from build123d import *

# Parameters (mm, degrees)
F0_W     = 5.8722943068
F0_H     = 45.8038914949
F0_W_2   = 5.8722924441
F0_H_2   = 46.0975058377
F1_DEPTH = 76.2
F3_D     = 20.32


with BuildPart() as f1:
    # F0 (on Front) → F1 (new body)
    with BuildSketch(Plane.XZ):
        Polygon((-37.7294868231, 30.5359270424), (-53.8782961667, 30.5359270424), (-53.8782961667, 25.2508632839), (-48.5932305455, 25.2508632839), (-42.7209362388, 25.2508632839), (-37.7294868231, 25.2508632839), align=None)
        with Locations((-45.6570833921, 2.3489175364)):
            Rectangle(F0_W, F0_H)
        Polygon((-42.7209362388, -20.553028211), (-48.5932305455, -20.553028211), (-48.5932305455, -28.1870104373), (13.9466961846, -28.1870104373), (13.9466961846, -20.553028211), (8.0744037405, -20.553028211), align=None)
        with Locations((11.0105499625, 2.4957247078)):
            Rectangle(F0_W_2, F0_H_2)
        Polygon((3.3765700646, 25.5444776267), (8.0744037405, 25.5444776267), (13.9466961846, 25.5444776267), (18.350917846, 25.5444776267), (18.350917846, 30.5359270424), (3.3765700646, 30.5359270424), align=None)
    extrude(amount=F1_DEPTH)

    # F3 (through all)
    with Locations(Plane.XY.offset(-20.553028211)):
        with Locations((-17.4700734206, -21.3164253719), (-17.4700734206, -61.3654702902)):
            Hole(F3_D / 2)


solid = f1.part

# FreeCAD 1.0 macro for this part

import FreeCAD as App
import Part
import Sketcher
from FreeCAD import Vector
Q = App.Units.Quantity


def add_polygon(sketch, points):
    """Adds a closed chain of lines whose ends are joined by coincident constraints."""
    first, n = sketch.GeometryCount, len(points)
    for a, b in zip(points, points[1:] + points[:1]):
        sketch.addGeometry(Part.LineSegment(App.Vector(*a, 0), App.Vector(*b, 0)), False)
    for i in range(n):
        sketch.addConstraint(Sketcher.Constraint("Coincident", first + i, 2, first + (i + 1) % n, 1))

doc = App.newDocument("Part")
body = doc.addObject("PartDesign::Body", "Body")

# Sketch on XZ plane
sketch1 = body.newObject("Sketcher::SketchObject", "Sketch")
sketch1.AttachmentSupport = (doc.getObject("XZ_Plane"), [""])
sketch1.MapMode = "FlatFace"
add_polygon(sketch1, [(-37.729487, 30.535927), (-53.878296, 30.535927), (-53.878296, 25.250863), (-48.593231, 25.250863), (-48.593231, -28.18701), (13.946696, -28.18701), (13.946696, 25.544478), (18.350918, 25.544478), (18.350918, 30.535927), (3.37657, 30.535927), (3.37657, 25.544478), (8.074404, 25.544478), (8.074404, -20.553028), (-42.720936, -20.553028), (-42.720936, 25.250863), (-37.729487, 25.250863)])  # lines 0-15
sketch1.addConstraint(Sketcher.Constraint("Horizontal", 0))
sketch1.addConstraint(Sketcher.Constraint("Vertical", 1))
sketch1.addConstraint(Sketcher.Constraint("Horizontal", 2))
sketch1.addConstraint(Sketcher.Constraint("Vertical", 3))
sketch1.addConstraint(Sketcher.Constraint("Horizontal", 4))
sketch1.addConstraint(Sketcher.Constraint("Vertical", 5))
sketch1.addConstraint(Sketcher.Constraint("Horizontal", 6))
sketch1.addConstraint(Sketcher.Constraint("Vertical", 7))
sketch1.addConstraint(Sketcher.Constraint("Horizontal", 8))
sketch1.addConstraint(Sketcher.Constraint("Vertical", 9))
sketch1.addConstraint(Sketcher.Constraint("Horizontal", 10))
sketch1.addConstraint(Sketcher.Constraint("Vertical", 11))
sketch1.addConstraint(Sketcher.Constraint("Horizontal", 12))
sketch1.addConstraint(Sketcher.Constraint("Vertical", 13))
sketch1.addConstraint(Sketcher.Constraint("Horizontal", 14))
sketch1.addConstraint(Sketcher.Constraint("Vertical", 15))
sketch1.addConstraint(Sketcher.Constraint("Horizontal", 0, 2, 7, 2))
sketch1.addConstraint(Sketcher.Constraint("Horizontal", 6, 2, 9, 2))
sketch1.addConstraint(Sketcher.Constraint("Horizontal", 2, 2, 13, 2))
sketch1.addConstraint(Sketcher.Constraint("Equal", 2, 1))
sketch1.addConstraint(Sketcher.Constraint("Equal", 14, 7))
sketch1.addConstraint(Sketcher.Constraint("DistanceX", 0, 2, 0, 1, 16.148809))
sketch1.addConstraint(Sketcher.Constraint("DistanceX", 6, 1, 6, 2, 4.404222))
sketch1.addConstraint(Sketcher.Constraint("DistanceX", 12, 2, 12, 1, 50.79534))
sketch1.addConstraint(Sketcher.Constraint("DistanceX", 14, 1, 14, 2, 4.991449))
sketch1.addConstraint(Sketcher.Constraint("DistanceY", 5, 1, 5, 2, 53.731488))
sketch1.addConstraint(Sketcher.Constraint("DistanceY", 13, 1, 13, 2, 45.803891))
sketch1.addConstraint(Sketcher.Constraint("DistanceX", 2, 2, 8, 2, 51.969801))
sketch1.addConstraint(Sketcher.Constraint("DistanceX", 2, 1, 2, 2, 5.285066))
sketch1.addConstraint(Sketcher.Constraint("DistanceX", 4, 1, 4, 2, 62.539927))
sketch1.addConstraint(Sketcher.Constraint("DistanceX", 2, 2, -1, 1, 48.593231))
sketch1.addConstraint(Sketcher.Constraint("DistanceY", 3, 2, -1, 1, 28.18701))
pad1 = body.newObject("PartDesign::Pad", "Pad")
pad1.Profile = sketch1
pad1.Length = Q("3 in")

# Sketch on XY plane
sketch2 = body.newObject("Sketcher::SketchObject", "Sketch001")
sketch2.AttachmentSupport = (doc.getObject("XY_Plane"), [""])
sketch2.MapMode = "FlatFace"
sketch2.AttachmentOffset = App.Placement(Vector(0, 0, -20.553028), App.Rotation())
sketch2.addGeometry(Part.Circle(Vector(-17.470073, -21.316425, 0), Vector(0, 0, 1), 10.16), False)
sketch2.addGeometry(Part.Circle(Vector(-17.470073, -61.36547, 0), Vector(0, 0, 1), 10.16), False)
sketch2.addConstraint(Sketcher.Constraint("Equal", 0, 1))
sketch2.addConstraint(Sketcher.Constraint("Vertical", 0, 3, 1, 3))
sketch2.addConstraint(Sketcher.Constraint("Diameter", 0, Q("0.8 in")))
sketch2.addConstraint(Sketcher.Constraint("DistanceY", 1, 3, -1, 1, 61.36547))
sketch2.addConstraint(Sketcher.Constraint("DistanceX", 0, 3, -1, 1, 17.470073))
sketch2.addConstraint(Sketcher.Constraint("DistanceY", 0, 3, -1, 1, 21.316425))
doc.recompute()
hole = body.newObject("PartDesign::Hole", "Hole")
hole.Profile = sketch2
hole.ThreadType = "None"
hole.Diameter = Q("0.8 in")
hole.DepthType = "ThroughAll"

doc.recompute()
